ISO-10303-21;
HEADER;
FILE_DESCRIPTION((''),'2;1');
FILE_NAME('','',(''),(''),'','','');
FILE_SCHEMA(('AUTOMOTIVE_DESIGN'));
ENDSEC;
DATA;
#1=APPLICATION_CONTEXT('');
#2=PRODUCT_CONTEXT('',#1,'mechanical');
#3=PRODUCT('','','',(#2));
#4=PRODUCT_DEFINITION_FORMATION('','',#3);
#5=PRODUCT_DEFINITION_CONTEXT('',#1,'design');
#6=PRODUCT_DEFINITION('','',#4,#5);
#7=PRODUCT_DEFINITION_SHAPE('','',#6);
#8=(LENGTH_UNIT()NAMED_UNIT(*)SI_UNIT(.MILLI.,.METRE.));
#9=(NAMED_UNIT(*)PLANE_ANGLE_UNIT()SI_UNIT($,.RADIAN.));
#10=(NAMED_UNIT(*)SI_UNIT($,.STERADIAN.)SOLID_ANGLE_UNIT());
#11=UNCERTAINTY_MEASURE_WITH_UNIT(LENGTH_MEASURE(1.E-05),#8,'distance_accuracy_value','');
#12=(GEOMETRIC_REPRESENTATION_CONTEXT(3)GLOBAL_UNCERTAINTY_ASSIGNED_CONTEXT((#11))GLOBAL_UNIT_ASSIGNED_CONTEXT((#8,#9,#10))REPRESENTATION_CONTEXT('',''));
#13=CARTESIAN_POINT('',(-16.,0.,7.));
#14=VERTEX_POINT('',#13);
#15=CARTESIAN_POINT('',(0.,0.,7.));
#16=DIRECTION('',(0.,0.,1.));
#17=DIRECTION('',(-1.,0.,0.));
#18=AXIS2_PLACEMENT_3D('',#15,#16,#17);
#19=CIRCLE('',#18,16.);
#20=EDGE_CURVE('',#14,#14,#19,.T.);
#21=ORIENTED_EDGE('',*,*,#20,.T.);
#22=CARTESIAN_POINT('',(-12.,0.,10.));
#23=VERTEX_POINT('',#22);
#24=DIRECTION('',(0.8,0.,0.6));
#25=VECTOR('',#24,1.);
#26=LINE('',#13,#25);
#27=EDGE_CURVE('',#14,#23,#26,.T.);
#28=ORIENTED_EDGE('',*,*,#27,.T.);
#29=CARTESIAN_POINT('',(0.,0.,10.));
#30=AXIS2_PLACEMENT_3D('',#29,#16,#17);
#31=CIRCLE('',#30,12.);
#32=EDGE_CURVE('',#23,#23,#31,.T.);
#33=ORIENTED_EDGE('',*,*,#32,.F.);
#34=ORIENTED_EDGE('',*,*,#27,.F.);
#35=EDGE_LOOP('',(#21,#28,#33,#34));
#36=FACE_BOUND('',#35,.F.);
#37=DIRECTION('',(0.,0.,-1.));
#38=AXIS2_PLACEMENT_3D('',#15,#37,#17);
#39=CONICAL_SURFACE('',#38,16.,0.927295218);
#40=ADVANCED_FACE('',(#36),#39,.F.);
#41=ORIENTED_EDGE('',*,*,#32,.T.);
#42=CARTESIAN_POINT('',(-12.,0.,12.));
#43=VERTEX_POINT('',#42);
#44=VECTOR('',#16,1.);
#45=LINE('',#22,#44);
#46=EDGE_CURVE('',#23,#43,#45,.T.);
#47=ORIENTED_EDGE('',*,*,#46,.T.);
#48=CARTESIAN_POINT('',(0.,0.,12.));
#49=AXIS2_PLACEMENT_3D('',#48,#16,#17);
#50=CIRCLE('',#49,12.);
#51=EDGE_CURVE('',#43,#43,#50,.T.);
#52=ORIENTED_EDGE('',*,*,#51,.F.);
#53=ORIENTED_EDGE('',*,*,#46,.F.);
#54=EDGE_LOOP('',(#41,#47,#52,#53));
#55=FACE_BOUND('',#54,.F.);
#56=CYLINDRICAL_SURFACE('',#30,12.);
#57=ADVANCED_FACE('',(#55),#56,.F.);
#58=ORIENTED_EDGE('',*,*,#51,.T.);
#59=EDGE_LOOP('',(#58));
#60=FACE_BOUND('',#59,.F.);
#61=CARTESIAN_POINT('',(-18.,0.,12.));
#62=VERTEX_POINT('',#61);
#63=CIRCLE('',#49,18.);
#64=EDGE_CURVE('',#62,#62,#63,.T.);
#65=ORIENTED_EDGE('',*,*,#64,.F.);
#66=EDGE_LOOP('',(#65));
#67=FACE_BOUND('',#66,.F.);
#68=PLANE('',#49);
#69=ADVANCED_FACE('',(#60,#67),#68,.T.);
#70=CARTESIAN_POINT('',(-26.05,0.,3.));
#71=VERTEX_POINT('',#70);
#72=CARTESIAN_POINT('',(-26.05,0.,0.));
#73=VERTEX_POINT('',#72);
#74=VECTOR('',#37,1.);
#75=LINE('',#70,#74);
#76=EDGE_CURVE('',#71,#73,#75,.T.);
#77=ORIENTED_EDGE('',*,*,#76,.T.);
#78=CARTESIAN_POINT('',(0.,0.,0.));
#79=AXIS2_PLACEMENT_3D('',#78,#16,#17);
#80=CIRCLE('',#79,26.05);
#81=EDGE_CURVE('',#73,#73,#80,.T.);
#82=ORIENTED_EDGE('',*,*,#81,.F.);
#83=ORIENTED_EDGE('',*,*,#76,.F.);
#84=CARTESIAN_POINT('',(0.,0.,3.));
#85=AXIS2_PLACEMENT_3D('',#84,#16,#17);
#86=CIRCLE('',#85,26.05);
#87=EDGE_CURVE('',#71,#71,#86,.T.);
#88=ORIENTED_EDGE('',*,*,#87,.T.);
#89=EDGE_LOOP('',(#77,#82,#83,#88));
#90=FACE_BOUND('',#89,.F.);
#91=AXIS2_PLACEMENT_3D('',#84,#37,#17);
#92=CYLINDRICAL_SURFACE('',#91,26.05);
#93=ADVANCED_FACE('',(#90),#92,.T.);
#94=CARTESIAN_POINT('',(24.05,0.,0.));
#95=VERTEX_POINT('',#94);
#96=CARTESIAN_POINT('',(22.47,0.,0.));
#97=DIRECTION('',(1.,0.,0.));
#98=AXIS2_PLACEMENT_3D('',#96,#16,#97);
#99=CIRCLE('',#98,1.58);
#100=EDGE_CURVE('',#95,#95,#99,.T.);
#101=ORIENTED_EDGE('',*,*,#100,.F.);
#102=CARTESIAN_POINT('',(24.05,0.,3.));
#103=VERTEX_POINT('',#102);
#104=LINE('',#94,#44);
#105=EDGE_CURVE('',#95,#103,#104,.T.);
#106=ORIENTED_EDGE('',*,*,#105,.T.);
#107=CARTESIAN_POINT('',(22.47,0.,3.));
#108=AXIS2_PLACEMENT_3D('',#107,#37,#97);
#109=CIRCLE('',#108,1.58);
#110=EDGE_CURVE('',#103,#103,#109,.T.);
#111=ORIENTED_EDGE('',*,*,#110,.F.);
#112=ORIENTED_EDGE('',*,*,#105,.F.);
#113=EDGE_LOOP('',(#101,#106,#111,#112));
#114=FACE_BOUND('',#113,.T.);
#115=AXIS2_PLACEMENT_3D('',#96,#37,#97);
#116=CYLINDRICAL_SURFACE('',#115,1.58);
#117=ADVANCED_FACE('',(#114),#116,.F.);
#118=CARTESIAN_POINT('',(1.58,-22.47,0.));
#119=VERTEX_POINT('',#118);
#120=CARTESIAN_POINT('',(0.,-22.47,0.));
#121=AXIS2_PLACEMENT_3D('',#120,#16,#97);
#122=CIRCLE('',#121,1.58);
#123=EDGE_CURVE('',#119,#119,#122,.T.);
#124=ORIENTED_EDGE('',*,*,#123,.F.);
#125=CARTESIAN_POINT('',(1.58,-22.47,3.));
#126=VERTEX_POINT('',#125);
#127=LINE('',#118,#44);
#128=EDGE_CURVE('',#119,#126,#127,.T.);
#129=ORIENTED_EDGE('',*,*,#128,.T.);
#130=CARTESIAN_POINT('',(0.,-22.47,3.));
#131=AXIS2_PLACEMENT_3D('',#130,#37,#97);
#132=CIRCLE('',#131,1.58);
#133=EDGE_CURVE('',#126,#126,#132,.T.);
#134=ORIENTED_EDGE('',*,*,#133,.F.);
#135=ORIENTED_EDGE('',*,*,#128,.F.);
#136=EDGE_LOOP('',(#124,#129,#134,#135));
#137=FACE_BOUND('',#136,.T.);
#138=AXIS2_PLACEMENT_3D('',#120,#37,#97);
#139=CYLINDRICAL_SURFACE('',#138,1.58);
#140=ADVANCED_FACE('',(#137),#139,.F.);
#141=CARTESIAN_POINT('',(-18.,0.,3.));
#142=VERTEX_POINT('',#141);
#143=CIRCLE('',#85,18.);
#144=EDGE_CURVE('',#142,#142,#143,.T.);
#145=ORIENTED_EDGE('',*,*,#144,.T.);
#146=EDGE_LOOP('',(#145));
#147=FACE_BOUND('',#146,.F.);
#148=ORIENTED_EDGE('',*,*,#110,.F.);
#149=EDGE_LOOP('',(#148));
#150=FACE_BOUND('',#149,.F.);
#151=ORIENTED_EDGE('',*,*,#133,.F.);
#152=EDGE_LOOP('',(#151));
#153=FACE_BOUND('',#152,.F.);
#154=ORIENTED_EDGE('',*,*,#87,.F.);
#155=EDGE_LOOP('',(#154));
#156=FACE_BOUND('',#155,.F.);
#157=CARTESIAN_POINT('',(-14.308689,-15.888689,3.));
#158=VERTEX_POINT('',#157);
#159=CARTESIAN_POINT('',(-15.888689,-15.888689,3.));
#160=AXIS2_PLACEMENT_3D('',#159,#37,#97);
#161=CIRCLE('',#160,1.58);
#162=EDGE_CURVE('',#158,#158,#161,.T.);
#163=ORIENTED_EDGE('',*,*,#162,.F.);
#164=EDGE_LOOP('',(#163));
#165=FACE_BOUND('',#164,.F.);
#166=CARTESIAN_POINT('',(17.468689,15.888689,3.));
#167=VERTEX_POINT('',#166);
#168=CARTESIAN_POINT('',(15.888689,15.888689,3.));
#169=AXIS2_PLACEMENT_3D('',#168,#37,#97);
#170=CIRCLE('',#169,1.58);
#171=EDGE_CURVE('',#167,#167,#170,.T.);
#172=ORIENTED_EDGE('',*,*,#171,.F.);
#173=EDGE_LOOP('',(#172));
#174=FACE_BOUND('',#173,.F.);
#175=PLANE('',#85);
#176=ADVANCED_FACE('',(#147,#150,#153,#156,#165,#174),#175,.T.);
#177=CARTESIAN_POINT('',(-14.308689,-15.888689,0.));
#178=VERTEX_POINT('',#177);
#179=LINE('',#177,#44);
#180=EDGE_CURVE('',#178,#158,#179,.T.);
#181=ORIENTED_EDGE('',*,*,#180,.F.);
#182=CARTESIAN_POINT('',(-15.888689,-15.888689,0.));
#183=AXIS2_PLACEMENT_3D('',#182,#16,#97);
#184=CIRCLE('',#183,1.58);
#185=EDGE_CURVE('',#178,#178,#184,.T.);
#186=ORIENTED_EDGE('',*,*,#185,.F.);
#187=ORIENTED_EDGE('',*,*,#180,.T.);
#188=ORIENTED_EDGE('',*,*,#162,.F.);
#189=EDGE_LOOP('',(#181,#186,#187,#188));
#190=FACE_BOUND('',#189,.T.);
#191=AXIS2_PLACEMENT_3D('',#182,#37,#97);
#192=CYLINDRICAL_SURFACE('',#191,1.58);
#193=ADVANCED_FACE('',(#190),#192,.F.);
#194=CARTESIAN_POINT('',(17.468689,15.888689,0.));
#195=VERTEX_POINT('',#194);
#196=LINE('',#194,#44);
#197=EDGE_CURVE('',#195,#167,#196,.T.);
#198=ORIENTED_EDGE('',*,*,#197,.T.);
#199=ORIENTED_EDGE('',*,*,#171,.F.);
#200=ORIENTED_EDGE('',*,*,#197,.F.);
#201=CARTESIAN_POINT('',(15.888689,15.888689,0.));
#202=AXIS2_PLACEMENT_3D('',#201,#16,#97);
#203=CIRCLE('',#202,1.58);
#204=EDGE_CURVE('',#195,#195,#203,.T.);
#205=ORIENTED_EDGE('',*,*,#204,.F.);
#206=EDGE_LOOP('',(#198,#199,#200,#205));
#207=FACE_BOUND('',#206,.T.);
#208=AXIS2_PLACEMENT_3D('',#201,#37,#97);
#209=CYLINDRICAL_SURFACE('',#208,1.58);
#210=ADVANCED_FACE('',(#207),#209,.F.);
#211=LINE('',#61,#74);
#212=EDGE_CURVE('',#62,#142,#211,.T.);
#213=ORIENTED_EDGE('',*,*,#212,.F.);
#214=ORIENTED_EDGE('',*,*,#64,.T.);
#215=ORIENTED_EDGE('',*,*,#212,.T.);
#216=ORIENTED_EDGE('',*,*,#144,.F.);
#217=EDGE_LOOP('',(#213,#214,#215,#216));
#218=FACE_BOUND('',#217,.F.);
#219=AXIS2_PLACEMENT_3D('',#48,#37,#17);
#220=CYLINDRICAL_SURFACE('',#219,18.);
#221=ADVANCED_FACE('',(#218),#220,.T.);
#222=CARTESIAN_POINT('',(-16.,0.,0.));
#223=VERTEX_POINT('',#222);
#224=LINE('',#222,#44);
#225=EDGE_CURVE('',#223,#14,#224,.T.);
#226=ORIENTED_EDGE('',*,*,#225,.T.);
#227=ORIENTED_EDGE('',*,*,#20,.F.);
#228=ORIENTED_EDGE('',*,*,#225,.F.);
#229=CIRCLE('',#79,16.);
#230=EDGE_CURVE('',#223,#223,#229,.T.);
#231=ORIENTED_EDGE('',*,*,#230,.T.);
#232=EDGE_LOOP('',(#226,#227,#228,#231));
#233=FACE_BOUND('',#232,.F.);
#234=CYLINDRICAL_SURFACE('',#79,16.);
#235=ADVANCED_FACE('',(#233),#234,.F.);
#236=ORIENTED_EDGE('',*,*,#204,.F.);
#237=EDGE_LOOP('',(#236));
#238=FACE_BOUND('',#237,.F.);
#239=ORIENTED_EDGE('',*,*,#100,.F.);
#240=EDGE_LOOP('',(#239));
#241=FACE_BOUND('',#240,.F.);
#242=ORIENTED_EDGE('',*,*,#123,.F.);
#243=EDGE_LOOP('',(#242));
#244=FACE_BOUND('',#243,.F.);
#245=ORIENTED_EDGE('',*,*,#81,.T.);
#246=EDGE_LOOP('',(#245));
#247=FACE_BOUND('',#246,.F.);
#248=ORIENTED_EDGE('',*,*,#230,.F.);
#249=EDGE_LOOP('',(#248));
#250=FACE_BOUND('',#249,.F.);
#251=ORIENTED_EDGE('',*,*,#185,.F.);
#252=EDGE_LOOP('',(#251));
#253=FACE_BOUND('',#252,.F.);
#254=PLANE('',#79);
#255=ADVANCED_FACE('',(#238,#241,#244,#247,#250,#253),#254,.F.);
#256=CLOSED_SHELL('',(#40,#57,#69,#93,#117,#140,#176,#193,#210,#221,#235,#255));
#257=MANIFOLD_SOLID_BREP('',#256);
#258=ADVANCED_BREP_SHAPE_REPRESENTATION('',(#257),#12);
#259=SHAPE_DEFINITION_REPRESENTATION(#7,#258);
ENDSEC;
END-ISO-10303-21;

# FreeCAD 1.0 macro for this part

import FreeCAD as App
import Part
import Sketcher
from FreeCAD import Vector

doc = App.newDocument("Part")
body = doc.addObject("PartDesign::Body", "Body")

sketch1 = doc.addObject("Sketcher::SketchObject", "Sketch")
body.addObject(sketch1)
sketch1.AttachmentSupport = (doc.XZ_Plane, [""])
sketch1.MapMode = "FlatFace"
sketch1.addGeometry(Part.LineSegment(Vector(-16, 7, 0), Vector(-12, 10, 0)), False)
sketch1.addGeometry(Part.LineSegment(Vector(-12, 10, 0), Vector(-12, 12, 0)), False)
sketch1.addGeometry(Part.LineSegment(Vector(-12, 12, 0), Vector(-18, 12, 0)), False)
sketch1.addGeometry(Part.LineSegment(Vector(-18, 12, 0), Vector(-18, 3, 0)), False)
sketch1.addGeometry(Part.LineSegment(Vector(-18, 3, 0), Vector(-26.1, 3, 0)), False)
sketch1.addGeometry(Part.LineSegment(Vector(-26.1, 3, 0), Vector(-26.1, 0, 0)), False)
sketch1.addGeometry(Part.LineSegment(Vector(-26.1, 0, 0), Vector(-16, 0, 0)), False)
sketch1.addGeometry(Part.LineSegment(Vector(-16, 0, 0), Vector(-16, 7, 0)), False)
sketch1.addConstraint(Sketcher.Constraint("Coincident", 0, 2, 1, 1))
sketch1.addConstraint(Sketcher.Constraint("Coincident", 1, 2, 2, 1))
sketch1.addConstraint(Sketcher.Constraint("Coincident", 2, 2, 3, 1))
sketch1.addConstraint(Sketcher.Constraint("Coincident", 3, 2, 4, 1))
sketch1.addConstraint(Sketcher.Constraint("Coincident", 4, 2, 5, 1))
sketch1.addConstraint(Sketcher.Constraint("Coincident", 5, 2, 6, 1))
sketch1.addConstraint(Sketcher.Constraint("Coincident", 6, 2, 7, 1))
sketch1.addConstraint(Sketcher.Constraint("Coincident", 7, 2, 0, 1))
sketch1.addConstraint(Sketcher.Constraint("Vertical", 1))
sketch1.addConstraint(Sketcher.Constraint("Horizontal", 2))
sketch1.addConstraint(Sketcher.Constraint("Vertical", 3))
sketch1.addConstraint(Sketcher.Constraint("Horizontal", 4))
sketch1.addConstraint(Sketcher.Constraint("Vertical", 5))
sketch1.addConstraint(Sketcher.Constraint("Horizontal", 6))
sketch1.addConstraint(Sketcher.Constraint("Vertical", 7))
sketch1.addConstraint(Sketcher.Constraint("PointOnObject", 5, 2, -1))
sketch1.addConstraint(Sketcher.Constraint("DistanceX", 2, 2, 2, 1, 6.0))
sketch1.addConstraint(Sketcher.Constraint("DistanceY", 1, 1, 1, 2, 2.0))
sketch1.addConstraint(Sketcher.Constraint("DistanceY", 3, 2, 3, 1, 9.0))
sketch1.addConstraint(Sketcher.Constraint("DistanceY", 5, 2, 5, 1, 3.0))
sketch1.addConstraint(Sketcher.Constraint("DistanceY", 7, 1, 7, 2, 7.0))
sketch1.addConstraint(Sketcher.Constraint("Distance", 0, 5.0))
sketch1.addConstraint(Sketcher.Constraint("DistanceX", 0, 2, -1, 1, 12.0))
sketch1.addConstraint(Sketcher.Constraint("DistanceX", 4, 2, 4, 1, 8.05))
revolution = doc.addObject("PartDesign::Revolution", "Revolution")
body.addObject(revolution)
revolution.Profile = sketch1
revolution.ReferenceAxis = (sketch1, ["V_Axis"])
revolution.Angle = 360

sketch2 = doc.addObject("Sketcher::SketchObject", "Sketch001")
body.addObject(sketch2)
sketch2.AttachmentSupport = (doc.XY_Plane, [""])
sketch2.MapMode = "FlatFace"
sketch2.addGeometry(Part.Circle(Vector(22.5, 0, 0), Vector(0, 0, 1), 1.6), False)
sketch2.addGeometry(Part.Circle(Vector(0, -22.5, 0), Vector(0, 0, 1), 1.6), False)
sketch2.addGeometry(Part.Circle(Vector(-15.9, -15.9, 0), Vector(0, 0, 1), 1.6), False)
sketch2.addGeometry(Part.Circle(Vector(15.9, 15.9, 0), Vector(0, 0, 1), 1.6), False)
sketch2.addConstraint(Sketcher.Constraint("Equal", 0, 1))
sketch2.addConstraint(Sketcher.Constraint("Equal", 1, 2))
sketch2.addConstraint(Sketcher.Constraint("Equal", 2, 3))
sketch2.addConstraint(Sketcher.Constraint("Symmetric", 2, 3, 3, 3, -1, 1))
sketch2.addConstraint(Sketcher.Constraint("PointOnObject", 0, 3, -1))
sketch2.addConstraint(Sketcher.Constraint("PointOnObject", 1, 3, -2))
sketch2.addConstraint(Sketcher.Constraint("Diameter", 0, 3.16))
sketch2.addConstraint(Sketcher.Constraint("DistanceX", -1, 1, 0, 3, 22.47))
sketch2.addConstraint(Sketcher.Constraint("DistanceY", 1, 3, -1, 1, 22.47))
sketch2.addConstraint(Sketcher.Constraint("DistanceX", 2, 3, -1, 1, 15.888689))
sketch2.addConstraint(Sketcher.Constraint("DistanceY", 2, 3, -1, 1, 15.888689))
pocket1 = doc.addObject("PartDesign::Pocket", "Pocket")
body.addObject(pocket1)
pocket1.Profile = sketch2
pocket1.Type = "ThroughAll"
pocket1.Midplane = True

doc.recompute()
